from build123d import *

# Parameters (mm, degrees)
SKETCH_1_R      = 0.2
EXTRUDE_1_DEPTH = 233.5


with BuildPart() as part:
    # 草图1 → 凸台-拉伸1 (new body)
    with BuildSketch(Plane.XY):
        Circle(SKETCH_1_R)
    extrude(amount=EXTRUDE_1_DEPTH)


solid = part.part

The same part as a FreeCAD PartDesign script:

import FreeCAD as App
import Part
import Sketcher
from FreeCAD import Vector
Q = App.Units.Quantity

doc = App.newDocument("Part")
body = doc.addObject("PartDesign::Body", "Body")

sketch1 = body.newObject("Sketcher::SketchObject", "Sketch")
sketch1.AttachmentSupport = (doc.getObject("XY_Plane"), [""])
sketch1.MapMode = "FlatFace"
sketch1.addGeometry(Part.Circle(Vector(0, 0, 0), Vector(0, 0, 1), 0.2), False)
sketch1.addConstraint(Sketcher.Constraint("Coincident", 0, 3, -1, 1))
sketch1.addConstraint(Sketcher.Constraint("Diameter", 0, Q("0.4 mm")))
pad1 = body.newObject("PartDesign::Pad", "Pad")
pad1.Profile = sketch1
pad1.Length = 233.5

doc.recompute()
